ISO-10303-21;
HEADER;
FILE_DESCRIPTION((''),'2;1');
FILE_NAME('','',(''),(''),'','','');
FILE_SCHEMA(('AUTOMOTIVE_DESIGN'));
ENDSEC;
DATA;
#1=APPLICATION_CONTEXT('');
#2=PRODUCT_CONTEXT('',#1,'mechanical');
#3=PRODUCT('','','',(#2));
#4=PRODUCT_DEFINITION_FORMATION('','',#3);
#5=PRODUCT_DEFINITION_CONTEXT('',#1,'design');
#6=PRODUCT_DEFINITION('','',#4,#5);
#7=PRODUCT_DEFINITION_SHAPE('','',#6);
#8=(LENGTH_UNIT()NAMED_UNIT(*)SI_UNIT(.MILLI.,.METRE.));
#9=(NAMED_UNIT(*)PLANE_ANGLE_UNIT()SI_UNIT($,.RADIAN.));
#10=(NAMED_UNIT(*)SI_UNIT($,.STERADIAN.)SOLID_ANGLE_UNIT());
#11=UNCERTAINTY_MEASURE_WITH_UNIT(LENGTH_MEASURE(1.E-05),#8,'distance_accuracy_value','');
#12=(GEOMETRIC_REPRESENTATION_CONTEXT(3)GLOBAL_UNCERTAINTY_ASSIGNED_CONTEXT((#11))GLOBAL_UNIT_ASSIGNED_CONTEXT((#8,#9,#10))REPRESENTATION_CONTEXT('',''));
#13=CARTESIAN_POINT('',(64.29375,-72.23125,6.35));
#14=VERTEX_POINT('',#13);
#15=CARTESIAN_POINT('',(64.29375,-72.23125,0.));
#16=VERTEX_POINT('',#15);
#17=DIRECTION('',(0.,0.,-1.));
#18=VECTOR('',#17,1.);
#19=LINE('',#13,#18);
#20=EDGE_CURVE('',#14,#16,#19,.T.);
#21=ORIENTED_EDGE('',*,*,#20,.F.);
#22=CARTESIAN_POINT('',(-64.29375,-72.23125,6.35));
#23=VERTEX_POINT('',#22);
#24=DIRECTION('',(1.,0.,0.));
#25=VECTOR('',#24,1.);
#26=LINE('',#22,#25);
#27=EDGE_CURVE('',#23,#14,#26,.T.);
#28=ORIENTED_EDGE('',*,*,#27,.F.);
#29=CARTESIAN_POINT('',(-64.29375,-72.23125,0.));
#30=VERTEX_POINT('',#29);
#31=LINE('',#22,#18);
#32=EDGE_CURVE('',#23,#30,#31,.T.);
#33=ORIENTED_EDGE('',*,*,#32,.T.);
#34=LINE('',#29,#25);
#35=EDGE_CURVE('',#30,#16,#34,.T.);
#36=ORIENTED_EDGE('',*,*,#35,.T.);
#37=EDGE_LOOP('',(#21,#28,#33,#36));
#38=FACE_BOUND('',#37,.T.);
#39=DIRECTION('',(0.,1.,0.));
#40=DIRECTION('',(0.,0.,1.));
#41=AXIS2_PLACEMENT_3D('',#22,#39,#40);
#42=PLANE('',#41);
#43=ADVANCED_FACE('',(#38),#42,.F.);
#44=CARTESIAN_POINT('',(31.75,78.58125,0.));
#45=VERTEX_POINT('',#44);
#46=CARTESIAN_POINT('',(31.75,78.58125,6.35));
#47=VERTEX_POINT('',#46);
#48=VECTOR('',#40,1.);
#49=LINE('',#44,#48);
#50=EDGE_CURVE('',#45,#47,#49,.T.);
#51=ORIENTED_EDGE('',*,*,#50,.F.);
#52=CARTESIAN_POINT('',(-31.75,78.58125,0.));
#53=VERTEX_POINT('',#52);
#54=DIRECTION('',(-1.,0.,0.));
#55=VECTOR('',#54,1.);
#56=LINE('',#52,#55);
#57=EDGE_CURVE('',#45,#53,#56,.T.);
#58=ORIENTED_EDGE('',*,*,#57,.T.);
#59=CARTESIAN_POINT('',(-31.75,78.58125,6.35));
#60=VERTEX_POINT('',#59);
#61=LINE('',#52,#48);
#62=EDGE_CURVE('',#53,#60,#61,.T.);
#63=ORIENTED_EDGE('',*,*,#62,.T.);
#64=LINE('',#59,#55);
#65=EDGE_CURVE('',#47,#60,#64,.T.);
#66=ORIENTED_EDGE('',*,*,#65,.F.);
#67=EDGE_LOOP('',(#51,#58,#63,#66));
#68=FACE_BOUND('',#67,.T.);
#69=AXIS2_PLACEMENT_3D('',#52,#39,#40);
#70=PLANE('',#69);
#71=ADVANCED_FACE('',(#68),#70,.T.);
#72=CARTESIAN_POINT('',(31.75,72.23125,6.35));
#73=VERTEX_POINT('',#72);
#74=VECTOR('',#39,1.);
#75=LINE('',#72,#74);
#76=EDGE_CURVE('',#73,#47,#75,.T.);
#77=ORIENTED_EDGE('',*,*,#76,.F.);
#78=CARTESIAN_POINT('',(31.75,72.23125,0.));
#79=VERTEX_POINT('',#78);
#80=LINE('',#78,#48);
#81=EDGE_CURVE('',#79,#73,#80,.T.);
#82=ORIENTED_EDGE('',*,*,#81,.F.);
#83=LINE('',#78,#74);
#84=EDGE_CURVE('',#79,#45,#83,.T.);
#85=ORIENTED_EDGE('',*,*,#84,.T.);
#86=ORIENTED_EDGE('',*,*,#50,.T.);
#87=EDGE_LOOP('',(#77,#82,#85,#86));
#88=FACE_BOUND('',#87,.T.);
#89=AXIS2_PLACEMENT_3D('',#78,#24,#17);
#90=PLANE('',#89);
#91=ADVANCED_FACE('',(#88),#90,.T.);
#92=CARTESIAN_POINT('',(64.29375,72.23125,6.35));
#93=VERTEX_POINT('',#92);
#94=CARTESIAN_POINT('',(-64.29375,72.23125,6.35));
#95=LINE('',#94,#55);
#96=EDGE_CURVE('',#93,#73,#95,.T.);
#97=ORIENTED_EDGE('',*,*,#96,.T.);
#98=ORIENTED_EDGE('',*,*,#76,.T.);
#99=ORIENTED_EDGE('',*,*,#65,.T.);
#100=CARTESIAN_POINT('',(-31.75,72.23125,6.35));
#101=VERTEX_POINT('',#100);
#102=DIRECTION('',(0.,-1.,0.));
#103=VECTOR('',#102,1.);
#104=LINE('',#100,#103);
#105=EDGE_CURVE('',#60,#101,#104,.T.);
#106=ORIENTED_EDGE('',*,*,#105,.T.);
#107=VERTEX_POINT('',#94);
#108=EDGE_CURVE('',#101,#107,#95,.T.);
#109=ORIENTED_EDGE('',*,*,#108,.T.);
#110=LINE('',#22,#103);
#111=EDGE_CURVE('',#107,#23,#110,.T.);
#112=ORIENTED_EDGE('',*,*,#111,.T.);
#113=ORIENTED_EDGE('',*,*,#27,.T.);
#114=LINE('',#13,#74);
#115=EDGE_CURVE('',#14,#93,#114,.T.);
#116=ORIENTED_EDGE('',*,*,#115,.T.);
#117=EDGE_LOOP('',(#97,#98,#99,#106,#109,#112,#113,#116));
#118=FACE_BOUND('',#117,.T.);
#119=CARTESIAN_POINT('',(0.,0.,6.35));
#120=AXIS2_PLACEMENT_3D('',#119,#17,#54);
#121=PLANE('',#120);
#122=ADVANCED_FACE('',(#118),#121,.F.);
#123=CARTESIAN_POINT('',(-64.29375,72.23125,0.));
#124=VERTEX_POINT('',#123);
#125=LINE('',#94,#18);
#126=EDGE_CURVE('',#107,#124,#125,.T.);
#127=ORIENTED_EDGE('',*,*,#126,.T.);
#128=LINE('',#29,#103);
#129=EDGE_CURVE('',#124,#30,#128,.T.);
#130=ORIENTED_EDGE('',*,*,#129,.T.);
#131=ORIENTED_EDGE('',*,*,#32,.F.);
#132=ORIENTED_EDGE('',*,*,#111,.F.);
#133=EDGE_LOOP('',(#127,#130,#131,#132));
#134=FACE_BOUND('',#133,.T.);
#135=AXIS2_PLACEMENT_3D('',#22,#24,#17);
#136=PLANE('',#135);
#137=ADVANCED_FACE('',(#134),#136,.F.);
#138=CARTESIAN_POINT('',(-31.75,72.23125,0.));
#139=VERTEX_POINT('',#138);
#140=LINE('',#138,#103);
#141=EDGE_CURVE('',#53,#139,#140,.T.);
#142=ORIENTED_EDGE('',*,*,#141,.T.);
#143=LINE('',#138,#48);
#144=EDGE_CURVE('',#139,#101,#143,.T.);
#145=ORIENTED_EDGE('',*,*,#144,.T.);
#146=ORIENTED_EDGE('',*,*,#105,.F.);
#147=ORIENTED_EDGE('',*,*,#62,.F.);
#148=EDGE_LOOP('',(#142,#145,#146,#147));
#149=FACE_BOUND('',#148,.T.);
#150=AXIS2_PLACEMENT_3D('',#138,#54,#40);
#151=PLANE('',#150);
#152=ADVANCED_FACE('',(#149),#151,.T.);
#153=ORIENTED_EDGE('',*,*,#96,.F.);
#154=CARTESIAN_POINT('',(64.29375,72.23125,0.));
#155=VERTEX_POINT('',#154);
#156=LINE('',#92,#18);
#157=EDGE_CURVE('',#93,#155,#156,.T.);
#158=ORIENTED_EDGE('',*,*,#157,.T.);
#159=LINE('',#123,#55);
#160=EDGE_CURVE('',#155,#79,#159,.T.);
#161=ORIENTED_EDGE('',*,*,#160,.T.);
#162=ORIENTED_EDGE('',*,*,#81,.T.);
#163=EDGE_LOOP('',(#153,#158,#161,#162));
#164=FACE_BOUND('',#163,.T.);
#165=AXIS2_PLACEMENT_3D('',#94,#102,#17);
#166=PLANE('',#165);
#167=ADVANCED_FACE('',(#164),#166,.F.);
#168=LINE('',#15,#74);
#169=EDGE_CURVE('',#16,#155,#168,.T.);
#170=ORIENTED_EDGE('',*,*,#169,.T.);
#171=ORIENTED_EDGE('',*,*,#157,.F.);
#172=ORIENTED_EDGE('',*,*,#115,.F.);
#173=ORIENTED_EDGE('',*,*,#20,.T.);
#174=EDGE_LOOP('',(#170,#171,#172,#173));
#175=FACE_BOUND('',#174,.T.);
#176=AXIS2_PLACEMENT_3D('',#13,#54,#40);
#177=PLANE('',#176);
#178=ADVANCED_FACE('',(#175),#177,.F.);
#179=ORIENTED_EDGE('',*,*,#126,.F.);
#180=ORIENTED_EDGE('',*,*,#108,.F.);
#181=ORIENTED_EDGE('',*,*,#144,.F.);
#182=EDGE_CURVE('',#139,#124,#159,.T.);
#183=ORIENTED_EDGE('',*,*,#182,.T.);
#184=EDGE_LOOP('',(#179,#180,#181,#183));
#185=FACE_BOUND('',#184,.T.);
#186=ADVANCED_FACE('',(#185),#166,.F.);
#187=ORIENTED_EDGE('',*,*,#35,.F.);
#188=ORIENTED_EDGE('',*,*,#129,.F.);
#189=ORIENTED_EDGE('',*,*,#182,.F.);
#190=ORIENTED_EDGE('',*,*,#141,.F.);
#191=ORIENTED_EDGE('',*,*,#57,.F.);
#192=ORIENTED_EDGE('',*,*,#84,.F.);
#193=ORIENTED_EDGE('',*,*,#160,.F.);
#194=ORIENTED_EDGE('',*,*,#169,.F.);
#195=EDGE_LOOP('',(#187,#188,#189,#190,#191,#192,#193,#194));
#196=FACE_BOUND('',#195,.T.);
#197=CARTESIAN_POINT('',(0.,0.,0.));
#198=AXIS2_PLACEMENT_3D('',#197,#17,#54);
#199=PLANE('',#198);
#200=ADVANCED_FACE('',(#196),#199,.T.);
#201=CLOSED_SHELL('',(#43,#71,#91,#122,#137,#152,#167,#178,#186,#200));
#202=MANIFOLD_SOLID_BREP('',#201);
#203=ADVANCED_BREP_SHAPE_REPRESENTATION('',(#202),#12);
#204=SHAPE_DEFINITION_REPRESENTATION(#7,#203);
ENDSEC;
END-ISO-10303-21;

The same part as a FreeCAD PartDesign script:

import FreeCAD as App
import Part
import Sketcher
Q = App.Units.Quantity


def add_polygon(sketch, points):
    """Adds a closed chain of lines whose ends are joined by coincident constraints."""
    first, n = sketch.GeometryCount, len(points)
    for a, b in zip(points, points[1:] + points[:1]):
        sketch.addGeometry(Part.LineSegment(App.Vector(*a, 0), App.Vector(*b, 0)), False)
    for i in range(n):
        sketch.addConstraint(Sketcher.Constraint("Coincident", first + i, 2, first + (i + 1) % n, 1))

doc = App.newDocument("Part")
body = doc.addObject("PartDesign::Body", "Body")

# Sketch on XY plane
sketch1 = doc.addObject("Sketcher::SketchObject", "Sketch")
body.addObject(sketch1)
sketch1.AttachmentSupport = (doc.XY_Plane, [""])
sketch1.MapMode = "FlatFace"
add_polygon(sketch1, [(-64, 72), (-64, -72), (64, -72), (64, 72)])  # lines 0-3
sketch1.addConstraint([
    Sketcher.Constraint("Vertical", 0),
    Sketcher.Constraint("Horizontal", 1),
    Sketcher.Constraint("Vertical", 2),
    Sketcher.Constraint("Horizontal", 3),
    Sketcher.Constraint("Symmetric", 0, 2, 2, 2, -1, 1),
    Sketcher.Constraint("DistanceX", 1, 1, 1, 2, Q("5.0625 in")),
    Sketcher.Constraint("DistanceY", 0, 2, 0, 1, Q("5.6875 in")),
])
pad1 = doc.addObject("PartDesign::Pad", "Pad")
body.addObject(pad1)
pad1.Profile = sketch1
pad1.Length = Q("0.25 in")

# Sketch on XY plane
sketch2 = doc.addObject("Sketcher::SketchObject", "Sketch001")
body.addObject(sketch2)
sketch2.AttachmentSupport = (doc.XY_Plane, [""])
sketch2.MapMode = "FlatFace"
sketch2.AttachmentOffset = App.Placement(App.Vector(0, 0, 0.25 * 25.4), App.Rotation())
add_polygon(sketch2, [(-32, 79), (-32, 72), (32, 72), (32, 79)])  # lines 0-3
sketch2.addConstraint([
    Sketcher.Constraint("Vertical", 0),
    Sketcher.Constraint("Horizontal", 1),
    Sketcher.Constraint("Vertical", 2),
    Sketcher.Constraint("Horizontal", 3),
    Sketcher.Constraint("DistanceX", 1, 1, 1, 2, Q("2.5 in")),
    Sketcher.Constraint("DistanceY", 0, 2, 0, 1, Q("0.25 in")),
    Sketcher.Constraint("DistanceX", 0, 2, -1, 1, Q("1.25 in")),
    Sketcher.Constraint("DistanceY", -1, 1, 0, 2, Q("2.84375 in")),
])
pad2 = doc.addObject("PartDesign::Pad", "Pad001")
body.addObject(pad2)
pad2.Profile = sketch2
pad2.Length = Q("0.25 in")
pad2.Reversed = True

doc.recompute()
